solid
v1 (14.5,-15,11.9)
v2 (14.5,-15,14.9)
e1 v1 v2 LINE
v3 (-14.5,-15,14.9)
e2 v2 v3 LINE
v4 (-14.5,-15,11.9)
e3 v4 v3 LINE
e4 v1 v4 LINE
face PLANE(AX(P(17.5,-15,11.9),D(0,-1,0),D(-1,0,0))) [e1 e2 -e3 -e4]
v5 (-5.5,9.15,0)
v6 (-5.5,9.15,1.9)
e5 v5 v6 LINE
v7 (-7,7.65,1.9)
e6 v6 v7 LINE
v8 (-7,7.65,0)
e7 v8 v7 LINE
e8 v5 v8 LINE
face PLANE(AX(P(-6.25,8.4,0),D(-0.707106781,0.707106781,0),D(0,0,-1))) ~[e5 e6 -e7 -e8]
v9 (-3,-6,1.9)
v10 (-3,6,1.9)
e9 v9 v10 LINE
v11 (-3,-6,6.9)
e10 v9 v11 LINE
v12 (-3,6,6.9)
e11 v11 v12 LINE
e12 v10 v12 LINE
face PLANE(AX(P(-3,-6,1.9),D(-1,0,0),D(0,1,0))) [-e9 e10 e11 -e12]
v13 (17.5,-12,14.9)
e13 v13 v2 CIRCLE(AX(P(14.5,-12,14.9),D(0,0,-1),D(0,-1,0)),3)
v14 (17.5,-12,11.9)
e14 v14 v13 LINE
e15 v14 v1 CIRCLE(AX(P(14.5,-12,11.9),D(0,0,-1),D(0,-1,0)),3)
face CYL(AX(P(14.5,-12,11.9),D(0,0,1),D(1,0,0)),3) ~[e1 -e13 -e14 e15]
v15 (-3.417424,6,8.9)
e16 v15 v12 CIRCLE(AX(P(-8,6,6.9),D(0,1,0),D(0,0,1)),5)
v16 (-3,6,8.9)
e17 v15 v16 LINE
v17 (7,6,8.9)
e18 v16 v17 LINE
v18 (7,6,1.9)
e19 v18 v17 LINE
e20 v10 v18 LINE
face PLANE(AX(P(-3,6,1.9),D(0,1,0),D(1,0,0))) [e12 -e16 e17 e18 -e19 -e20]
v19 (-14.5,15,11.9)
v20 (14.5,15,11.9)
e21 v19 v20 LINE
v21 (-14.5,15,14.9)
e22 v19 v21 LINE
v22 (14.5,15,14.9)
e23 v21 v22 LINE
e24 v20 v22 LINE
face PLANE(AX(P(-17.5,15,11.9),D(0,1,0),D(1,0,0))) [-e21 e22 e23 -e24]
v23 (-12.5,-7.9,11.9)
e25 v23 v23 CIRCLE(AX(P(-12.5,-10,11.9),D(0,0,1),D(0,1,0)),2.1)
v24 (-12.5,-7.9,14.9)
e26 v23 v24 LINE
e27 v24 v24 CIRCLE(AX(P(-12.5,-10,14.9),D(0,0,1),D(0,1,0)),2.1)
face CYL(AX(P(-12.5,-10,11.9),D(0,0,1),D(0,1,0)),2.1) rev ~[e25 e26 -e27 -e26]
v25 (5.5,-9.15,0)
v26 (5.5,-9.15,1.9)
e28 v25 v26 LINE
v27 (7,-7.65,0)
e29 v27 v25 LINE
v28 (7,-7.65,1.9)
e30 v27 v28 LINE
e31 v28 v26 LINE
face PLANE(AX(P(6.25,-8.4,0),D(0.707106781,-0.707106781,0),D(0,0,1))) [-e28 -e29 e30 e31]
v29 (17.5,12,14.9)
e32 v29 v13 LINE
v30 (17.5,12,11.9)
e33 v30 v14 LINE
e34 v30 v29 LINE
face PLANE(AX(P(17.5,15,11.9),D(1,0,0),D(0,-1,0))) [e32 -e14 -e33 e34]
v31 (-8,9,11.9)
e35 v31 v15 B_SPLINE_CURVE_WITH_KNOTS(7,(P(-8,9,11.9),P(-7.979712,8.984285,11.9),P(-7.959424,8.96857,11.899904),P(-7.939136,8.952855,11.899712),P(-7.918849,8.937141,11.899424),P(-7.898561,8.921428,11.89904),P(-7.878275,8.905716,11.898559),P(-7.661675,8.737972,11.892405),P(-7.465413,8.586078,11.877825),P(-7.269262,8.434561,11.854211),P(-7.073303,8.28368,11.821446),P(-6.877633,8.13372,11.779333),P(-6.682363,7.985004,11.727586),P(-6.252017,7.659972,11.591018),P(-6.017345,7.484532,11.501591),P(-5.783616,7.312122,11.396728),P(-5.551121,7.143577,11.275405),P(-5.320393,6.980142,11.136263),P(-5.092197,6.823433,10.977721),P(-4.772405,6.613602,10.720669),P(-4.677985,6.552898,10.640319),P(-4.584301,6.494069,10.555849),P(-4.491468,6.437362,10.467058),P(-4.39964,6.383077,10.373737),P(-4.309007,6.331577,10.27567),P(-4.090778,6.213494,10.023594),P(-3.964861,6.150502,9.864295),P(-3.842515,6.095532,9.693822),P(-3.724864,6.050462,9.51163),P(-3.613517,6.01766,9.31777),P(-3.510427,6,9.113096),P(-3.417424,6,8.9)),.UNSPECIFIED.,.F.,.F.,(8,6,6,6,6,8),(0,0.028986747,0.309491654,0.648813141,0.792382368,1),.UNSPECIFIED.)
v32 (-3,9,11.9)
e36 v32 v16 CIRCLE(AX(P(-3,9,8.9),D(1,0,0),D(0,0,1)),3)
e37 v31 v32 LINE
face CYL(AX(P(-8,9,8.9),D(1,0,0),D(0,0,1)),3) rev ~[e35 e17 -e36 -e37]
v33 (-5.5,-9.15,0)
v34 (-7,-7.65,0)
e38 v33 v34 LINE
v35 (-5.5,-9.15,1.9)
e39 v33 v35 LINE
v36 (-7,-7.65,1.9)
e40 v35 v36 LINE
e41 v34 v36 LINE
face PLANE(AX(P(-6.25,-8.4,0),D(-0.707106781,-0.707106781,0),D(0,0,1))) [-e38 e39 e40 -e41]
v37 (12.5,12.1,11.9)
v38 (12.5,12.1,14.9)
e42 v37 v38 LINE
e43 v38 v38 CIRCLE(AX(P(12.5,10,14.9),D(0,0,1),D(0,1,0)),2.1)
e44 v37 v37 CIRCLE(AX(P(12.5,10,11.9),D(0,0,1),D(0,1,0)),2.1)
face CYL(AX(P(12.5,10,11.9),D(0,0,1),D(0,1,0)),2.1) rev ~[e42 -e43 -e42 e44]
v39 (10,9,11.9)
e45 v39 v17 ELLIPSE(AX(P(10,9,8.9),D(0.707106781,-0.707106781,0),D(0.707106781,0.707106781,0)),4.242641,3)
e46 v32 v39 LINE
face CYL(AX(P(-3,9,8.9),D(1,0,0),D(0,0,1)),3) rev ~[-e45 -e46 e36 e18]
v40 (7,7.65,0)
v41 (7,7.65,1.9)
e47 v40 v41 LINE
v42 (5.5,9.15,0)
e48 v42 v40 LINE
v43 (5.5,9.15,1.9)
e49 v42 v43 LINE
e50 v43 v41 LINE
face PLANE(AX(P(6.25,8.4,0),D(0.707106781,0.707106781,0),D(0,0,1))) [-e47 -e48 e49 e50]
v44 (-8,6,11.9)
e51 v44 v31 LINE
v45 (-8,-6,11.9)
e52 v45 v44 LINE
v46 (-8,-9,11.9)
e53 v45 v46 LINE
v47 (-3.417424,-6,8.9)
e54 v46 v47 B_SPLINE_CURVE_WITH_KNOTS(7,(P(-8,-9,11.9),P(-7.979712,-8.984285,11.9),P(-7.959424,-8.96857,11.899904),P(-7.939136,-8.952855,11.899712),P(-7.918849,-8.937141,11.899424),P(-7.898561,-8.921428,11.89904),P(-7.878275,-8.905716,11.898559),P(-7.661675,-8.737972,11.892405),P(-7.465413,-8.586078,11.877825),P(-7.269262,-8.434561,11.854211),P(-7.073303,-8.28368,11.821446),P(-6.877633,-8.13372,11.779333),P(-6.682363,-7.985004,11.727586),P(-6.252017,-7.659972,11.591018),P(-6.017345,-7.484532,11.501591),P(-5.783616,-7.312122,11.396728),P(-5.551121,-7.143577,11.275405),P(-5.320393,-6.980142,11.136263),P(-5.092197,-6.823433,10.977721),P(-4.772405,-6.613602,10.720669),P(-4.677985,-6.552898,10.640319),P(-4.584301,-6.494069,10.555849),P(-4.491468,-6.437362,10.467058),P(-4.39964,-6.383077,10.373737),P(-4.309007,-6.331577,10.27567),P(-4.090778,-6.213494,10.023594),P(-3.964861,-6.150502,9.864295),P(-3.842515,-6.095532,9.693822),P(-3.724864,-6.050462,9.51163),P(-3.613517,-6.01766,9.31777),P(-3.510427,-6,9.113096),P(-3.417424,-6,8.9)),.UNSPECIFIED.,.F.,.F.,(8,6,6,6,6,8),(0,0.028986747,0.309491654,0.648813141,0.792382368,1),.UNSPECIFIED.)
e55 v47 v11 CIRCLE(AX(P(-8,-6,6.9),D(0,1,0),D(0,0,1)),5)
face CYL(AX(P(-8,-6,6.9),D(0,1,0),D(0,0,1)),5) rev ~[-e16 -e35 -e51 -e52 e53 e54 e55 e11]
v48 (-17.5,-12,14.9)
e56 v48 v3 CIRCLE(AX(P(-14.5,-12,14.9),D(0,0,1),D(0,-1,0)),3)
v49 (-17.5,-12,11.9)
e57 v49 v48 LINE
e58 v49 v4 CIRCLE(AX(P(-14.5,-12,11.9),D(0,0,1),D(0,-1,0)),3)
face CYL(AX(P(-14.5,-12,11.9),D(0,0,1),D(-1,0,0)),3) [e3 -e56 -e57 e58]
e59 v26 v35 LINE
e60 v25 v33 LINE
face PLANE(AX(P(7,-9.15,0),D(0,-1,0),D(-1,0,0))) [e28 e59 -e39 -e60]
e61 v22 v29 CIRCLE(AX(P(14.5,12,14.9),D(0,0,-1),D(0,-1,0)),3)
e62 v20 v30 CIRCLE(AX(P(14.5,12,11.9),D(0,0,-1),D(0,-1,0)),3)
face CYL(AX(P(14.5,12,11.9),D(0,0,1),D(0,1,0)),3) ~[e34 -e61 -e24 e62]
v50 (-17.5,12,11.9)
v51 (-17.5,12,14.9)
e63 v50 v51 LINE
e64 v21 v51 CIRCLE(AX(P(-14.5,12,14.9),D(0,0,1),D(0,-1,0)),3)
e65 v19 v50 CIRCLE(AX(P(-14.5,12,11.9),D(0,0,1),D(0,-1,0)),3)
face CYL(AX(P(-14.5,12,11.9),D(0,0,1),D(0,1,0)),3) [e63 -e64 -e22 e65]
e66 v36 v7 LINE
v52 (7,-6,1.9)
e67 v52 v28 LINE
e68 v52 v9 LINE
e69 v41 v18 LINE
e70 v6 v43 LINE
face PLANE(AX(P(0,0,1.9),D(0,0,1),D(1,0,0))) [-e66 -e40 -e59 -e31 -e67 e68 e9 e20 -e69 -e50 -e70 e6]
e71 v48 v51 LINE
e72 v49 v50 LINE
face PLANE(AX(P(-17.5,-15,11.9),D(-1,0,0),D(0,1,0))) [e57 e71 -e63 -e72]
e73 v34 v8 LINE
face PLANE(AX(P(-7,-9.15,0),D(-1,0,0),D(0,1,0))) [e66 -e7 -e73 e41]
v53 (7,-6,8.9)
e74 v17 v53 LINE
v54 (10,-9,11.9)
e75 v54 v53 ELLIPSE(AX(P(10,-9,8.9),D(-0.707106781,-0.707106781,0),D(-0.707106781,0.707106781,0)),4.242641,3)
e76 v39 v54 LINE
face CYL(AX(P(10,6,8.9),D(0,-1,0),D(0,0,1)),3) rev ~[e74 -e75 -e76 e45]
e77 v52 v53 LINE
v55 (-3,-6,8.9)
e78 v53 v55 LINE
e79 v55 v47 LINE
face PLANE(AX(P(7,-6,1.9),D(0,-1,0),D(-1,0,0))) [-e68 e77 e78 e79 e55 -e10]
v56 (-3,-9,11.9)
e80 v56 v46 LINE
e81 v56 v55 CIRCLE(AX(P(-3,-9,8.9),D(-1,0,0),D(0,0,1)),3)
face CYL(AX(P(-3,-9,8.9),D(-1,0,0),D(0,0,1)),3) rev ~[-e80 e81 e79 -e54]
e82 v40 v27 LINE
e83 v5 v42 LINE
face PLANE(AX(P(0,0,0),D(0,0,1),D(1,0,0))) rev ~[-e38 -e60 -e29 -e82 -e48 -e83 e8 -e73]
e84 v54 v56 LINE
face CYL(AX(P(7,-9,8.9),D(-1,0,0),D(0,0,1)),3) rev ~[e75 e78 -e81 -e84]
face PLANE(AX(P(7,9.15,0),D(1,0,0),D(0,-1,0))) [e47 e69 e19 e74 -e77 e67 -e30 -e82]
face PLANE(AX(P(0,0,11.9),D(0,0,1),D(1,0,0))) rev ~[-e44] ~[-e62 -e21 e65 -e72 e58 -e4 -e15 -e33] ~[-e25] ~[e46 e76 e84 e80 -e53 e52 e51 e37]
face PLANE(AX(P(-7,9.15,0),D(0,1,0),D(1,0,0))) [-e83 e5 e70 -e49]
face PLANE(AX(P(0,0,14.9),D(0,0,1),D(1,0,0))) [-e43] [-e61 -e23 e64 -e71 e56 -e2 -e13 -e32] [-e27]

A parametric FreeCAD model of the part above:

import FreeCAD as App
import Part
import Sketcher
Q = App.Units.Quantity


def edges_at(feature, points):
    """Names of the edges that pass closest to the given points."""
    edges = feature.Shape.Edges
    near = lambda p: min(range(len(edges)), key=lambda i: edges[i].distToShape(Part.Vertex(*p))[0])
    return sorted({f"Edge{near(p) + 1}" for p in points})

doc = App.newDocument("Part")
body = doc.addObject("PartDesign::Body", "Body")

sketch1 = body.newObject("Sketcher::SketchObject", "Sketch")
sketch1.AttachmentSupport = (doc.getObject("XY_Plane"), [""])
sketch1.MapMode = "FlatFace"
sketch1.addGeometry(Part.LineSegment(App.Vector(7, 9.15, 0), App.Vector(-7, 9.15, 0)), False)
sketch1.addGeometry(Part.LineSegment(App.Vector(-7, 9.15, 0), App.Vector(-7, -9.15, 0)), False)
sketch1.addGeometry(Part.LineSegment(App.Vector(-7, -9.15, 0), App.Vector(7, -9.15, 0)), False)
sketch1.addGeometry(Part.LineSegment(App.Vector(7, -9.15, 0), App.Vector(7, 9.15, 0)), False)
sketch1.addConstraint(Sketcher.Constraint("Coincident", 0, 2, 1, 1))
sketch1.addConstraint(Sketcher.Constraint("Coincident", 1, 2, 2, 1))
sketch1.addConstraint(Sketcher.Constraint("Coincident", 2, 2, 3, 1))
sketch1.addConstraint(Sketcher.Constraint("Coincident", 3, 2, 0, 1))
sketch1.addConstraint(Sketcher.Constraint("Horizontal", 0))
sketch1.addConstraint(Sketcher.Constraint("Vertical", 1))
sketch1.addConstraint(Sketcher.Constraint("Horizontal", 2))
sketch1.addConstraint(Sketcher.Constraint("Vertical", 3))
sketch1.addConstraint(Sketcher.Constraint("Symmetric", 0, 2, 2, 2, -1, 1))
sketch1.addConstraint(Sketcher.Constraint("DistanceX", 0, 2, 0, 1, Q("14 mm")))
sketch1.addConstraint(Sketcher.Constraint("DistanceY", 1, 2, 1, 1, Q("18.3 mm")))
pad1 = body.newObject("PartDesign::Pad", "Pad")
pad1.Profile = sketch1
pad1.Length = 1.9
doc.recompute()

chamfer = body.newObject("PartDesign::Chamfer", "Chamfer")
chamfer.Base = (pad1, edges_at(pad1, [
    (-7, -9.15, 0.95),
    (7, -9.15, 0.95),
    (7, 9.15, 0.95),
    (-7, 9.15, 0.95),
]))
chamfer.Size = 1.5

sketch2 = body.newObject("Sketcher::SketchObject", "Sketch001")
sketch2.AttachmentSupport = (doc.getObject("XY_Plane"), [""])
sketch2.MapMode = "FlatFace"
sketch2.AttachmentOffset = App.Placement(App.Vector(0, 0, 1.9), App.Rotation())
sketch2.addGeometry(Part.LineSegment(App.Vector(-3, -6, 0), App.Vector(7, -6, 0)), False)
sketch2.addGeometry(Part.LineSegment(App.Vector(7, -6, 0), App.Vector(7, 6, 0)), False)
sketch2.addGeometry(Part.LineSegment(App.Vector(7, 6, 0), App.Vector(-3, 6, 0)), False)
sketch2.addGeometry(Part.LineSegment(App.Vector(-3, 6, 0), App.Vector(-3, -6, 0)), False)
sketch2.addConstraint(Sketcher.Constraint("Coincident", 0, 2, 1, 1))
sketch2.addConstraint(Sketcher.Constraint("Coincident", 1, 2, 2, 1))
sketch2.addConstraint(Sketcher.Constraint("Coincident", 2, 2, 3, 1))
sketch2.addConstraint(Sketcher.Constraint("Coincident", 3, 2, 0, 1))
sketch2.addConstraint(Sketcher.Constraint("Horizontal", 0))
sketch2.addConstraint(Sketcher.Constraint("Vertical", 1))
sketch2.addConstraint(Sketcher.Constraint("Horizontal", 2))
sketch2.addConstraint(Sketcher.Constraint("Vertical", 3))
sketch2.addConstraint(Sketcher.Constraint("DistanceX", 0, 1, 0, 2, Q("10 mm")))
sketch2.addConstraint(Sketcher.Constraint("DistanceY", 1, 1, 1, 2, Q("12 mm")))
sketch2.addConstraint(Sketcher.Constraint("DistanceX", -1, 1, 0, 2, Q("7 mm")))
sketch2.addConstraint(Sketcher.Constraint("DistanceY", 0, 2, -1, 1, Q("6 mm")))
pad2 = body.newObject("PartDesign::Pad", "Pad001")
pad2.Profile = sketch2
pad2.Length = 10

sketch3 = body.newObject("Sketcher::SketchObject", "Sketch002")
sketch3.AttachmentSupport = (doc.getObject("XY_Plane"), [""])
sketch3.MapMode = "FlatFace"
sketch3.AttachmentOffset = App.Placement(App.Vector(0, 0, 11.9), App.Rotation())
sketch3.addGeometry(Part.LineSegment(App.Vector(17.5, 15, 0), App.Vector(-17.5, 15, 0)), False)
sketch3.addGeometry(Part.LineSegment(App.Vector(-17.5, 15, 0), App.Vector(-17.5, -15, 0)), False)
sketch3.addGeometry(Part.LineSegment(App.Vector(-17.5, -15, 0), App.Vector(17.5, -15, 0)), False)
sketch3.addGeometry(Part.LineSegment(App.Vector(17.5, -15, 0), App.Vector(17.5, 15, 0)), False)
sketch3.addConstraint(Sketcher.Constraint("Coincident", 0, 2, 1, 1))
sketch3.addConstraint(Sketcher.Constraint("Coincident", 1, 2, 2, 1))
sketch3.addConstraint(Sketcher.Constraint("Coincident", 2, 2, 3, 1))
sketch3.addConstraint(Sketcher.Constraint("Coincident", 3, 2, 0, 1))
sketch3.addConstraint(Sketcher.Constraint("Horizontal", 0))
sketch3.addConstraint(Sketcher.Constraint("Vertical", 1))
sketch3.addConstraint(Sketcher.Constraint("Horizontal", 2))
sketch3.addConstraint(Sketcher.Constraint("Vertical", 3))
sketch3.addConstraint(Sketcher.Constraint("Symmetric", 0, 2, 2, 2, -1, 1))
sketch3.addConstraint(Sketcher.Constraint("DistanceX", 0, 2, 0, 1, Q("35 mm")))
sketch3.addConstraint(Sketcher.Constraint("DistanceY", 1, 2, 1, 1, Q("30 mm")))
pad3 = body.newObject("PartDesign::Pad", "Pad002")
pad3.Profile = sketch3
pad3.Length = 3

sketch4 = body.newObject("Sketcher::SketchObject", "Sketch003")
sketch4.AttachmentSupport = (doc.getObject("XY_Plane"), [""])
sketch4.MapMode = "FlatFace"
sketch4.AttachmentOffset = App.Placement(App.Vector(0, 0, 11.9), App.Rotation())
sketch4.addGeometry(Part.Circle(App.Vector(-12.5, -10, 0), App.Vector(0, 0, 1), 2.1), False)
sketch4.addGeometry(Part.Circle(App.Vector(12.5, 10, 0), App.Vector(0, 0, 1), 2.1), False)
sketch4.addConstraint(Sketcher.Constraint("Equal", 0, 1))
sketch4.addConstraint(Sketcher.Constraint("Symmetric", 0, 3, 1, 3, -1, 1))
sketch4.addConstraint(Sketcher.Constraint("Diameter", 0, Q("4.2 mm")))
sketch4.addConstraint(Sketcher.Constraint("DistanceY", 0, 3, -1, 1, Q("10 mm")))
sketch4.addConstraint(Sketcher.Constraint("DistanceX", 0, 3, 1, 3, Q("25 mm")))
doc.recompute()
hole = body.newObject("PartDesign::Hole", "Hole")
hole.Profile = sketch4
hole.ThreadType = "None"
hole.Diameter = 4.2
hole.DepthType = "ThroughAll"
hole.Reversed = True
doc.recompute()

fillet = body.newObject("PartDesign::Fillet", "Fillet")
fillet.Base = (hole, edges_at(hole, [(-3, 0, 11.9)]))
fillet.Radius = 5
doc.recompute()

fillet2 = body.newObject("PartDesign::Fillet", "Fillet001")
fillet2.Base = (fillet, edges_at(fillet, [(2, -6, 11.9), (2, 6, 11.9), (7, 0, 11.9)]))
fillet2.Radius = 3
doc.recompute()

fillet3 = body.newObject("PartDesign::Fillet", "Fillet002")
fillet3.Base = (fillet2, edges_at(fillet2, [
    (-17.5, -15, 13.4),
    (-17.5, 15, 13.4),
    (17.5, 15, 13.4),
    (17.5, -15, 13.4),
]))
fillet3.Radius = 3

doc.recompute()
